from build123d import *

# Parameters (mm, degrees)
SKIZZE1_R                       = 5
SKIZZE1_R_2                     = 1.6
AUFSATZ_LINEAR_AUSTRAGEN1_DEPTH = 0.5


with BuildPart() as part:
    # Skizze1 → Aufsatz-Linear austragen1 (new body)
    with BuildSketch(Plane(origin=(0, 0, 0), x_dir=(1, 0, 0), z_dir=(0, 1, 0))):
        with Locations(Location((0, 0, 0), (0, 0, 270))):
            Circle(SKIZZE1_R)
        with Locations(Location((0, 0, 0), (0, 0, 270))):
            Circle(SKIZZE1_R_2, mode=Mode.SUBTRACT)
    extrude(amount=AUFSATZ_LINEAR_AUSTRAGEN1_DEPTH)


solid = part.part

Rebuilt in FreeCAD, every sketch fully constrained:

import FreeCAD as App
import Part
import Sketcher

V = App.Vector
Q = App.Units.Quantity

doc = App.newDocument("Part")
params = doc.addObject("Spreadsheet::Sheet", "Params")
for row, (alias, value) in enumerate([
    ("sketch1_diameter", "10 mm"),
    ("sketch1_diameter2", "3.2 mm"),
    ("pad1_length", "0.5 mm"),
], start=1):
    params.set(f"A{row}", alias)
    params.set(f"B{row}", "=" + value)
    params.setAlias(f"B{row}", alias)

body = doc.addObject("PartDesign::Body", "Body")

sketch1 = body.newObject("Sketcher::SketchObject", "Sketch")
sketch1.AttachmentSupport = (doc.getObject("XZ_Plane"), [""])
sketch1.MapMode = "FlatFace"
sketch1.addGeometry(Part.Circle(V(0, 0, 0), V(0, 0, 1), 5), False)
sketch1.addGeometry(Part.Circle(V(0, 0, 0), V(0, 0, 1), 1.6), False)
sketch1.addConstraint(Sketcher.Constraint("Coincident", 0, 3, -1, 1))
sketch1.addConstraint(Sketcher.Constraint("Coincident", 1, 3, -1, 1))
sketch1.addConstraint(Sketcher.Constraint("Diameter", 0, Q("10 mm")))
sketch1.addConstraint(Sketcher.Constraint("Diameter", 1, Q("3.2 mm")))
sketch1.setExpression("Constraints[2]", "Params.sketch1_diameter")
sketch1.setExpression("Constraints[3]", "Params.sketch1_diameter2")
pad1 = body.newObject("PartDesign::Pad", "Pad")
pad1.Profile = sketch1
pad1.setExpression("Length", "Params.pad1_length")
pad1.Reversed = True

doc.recompute()
